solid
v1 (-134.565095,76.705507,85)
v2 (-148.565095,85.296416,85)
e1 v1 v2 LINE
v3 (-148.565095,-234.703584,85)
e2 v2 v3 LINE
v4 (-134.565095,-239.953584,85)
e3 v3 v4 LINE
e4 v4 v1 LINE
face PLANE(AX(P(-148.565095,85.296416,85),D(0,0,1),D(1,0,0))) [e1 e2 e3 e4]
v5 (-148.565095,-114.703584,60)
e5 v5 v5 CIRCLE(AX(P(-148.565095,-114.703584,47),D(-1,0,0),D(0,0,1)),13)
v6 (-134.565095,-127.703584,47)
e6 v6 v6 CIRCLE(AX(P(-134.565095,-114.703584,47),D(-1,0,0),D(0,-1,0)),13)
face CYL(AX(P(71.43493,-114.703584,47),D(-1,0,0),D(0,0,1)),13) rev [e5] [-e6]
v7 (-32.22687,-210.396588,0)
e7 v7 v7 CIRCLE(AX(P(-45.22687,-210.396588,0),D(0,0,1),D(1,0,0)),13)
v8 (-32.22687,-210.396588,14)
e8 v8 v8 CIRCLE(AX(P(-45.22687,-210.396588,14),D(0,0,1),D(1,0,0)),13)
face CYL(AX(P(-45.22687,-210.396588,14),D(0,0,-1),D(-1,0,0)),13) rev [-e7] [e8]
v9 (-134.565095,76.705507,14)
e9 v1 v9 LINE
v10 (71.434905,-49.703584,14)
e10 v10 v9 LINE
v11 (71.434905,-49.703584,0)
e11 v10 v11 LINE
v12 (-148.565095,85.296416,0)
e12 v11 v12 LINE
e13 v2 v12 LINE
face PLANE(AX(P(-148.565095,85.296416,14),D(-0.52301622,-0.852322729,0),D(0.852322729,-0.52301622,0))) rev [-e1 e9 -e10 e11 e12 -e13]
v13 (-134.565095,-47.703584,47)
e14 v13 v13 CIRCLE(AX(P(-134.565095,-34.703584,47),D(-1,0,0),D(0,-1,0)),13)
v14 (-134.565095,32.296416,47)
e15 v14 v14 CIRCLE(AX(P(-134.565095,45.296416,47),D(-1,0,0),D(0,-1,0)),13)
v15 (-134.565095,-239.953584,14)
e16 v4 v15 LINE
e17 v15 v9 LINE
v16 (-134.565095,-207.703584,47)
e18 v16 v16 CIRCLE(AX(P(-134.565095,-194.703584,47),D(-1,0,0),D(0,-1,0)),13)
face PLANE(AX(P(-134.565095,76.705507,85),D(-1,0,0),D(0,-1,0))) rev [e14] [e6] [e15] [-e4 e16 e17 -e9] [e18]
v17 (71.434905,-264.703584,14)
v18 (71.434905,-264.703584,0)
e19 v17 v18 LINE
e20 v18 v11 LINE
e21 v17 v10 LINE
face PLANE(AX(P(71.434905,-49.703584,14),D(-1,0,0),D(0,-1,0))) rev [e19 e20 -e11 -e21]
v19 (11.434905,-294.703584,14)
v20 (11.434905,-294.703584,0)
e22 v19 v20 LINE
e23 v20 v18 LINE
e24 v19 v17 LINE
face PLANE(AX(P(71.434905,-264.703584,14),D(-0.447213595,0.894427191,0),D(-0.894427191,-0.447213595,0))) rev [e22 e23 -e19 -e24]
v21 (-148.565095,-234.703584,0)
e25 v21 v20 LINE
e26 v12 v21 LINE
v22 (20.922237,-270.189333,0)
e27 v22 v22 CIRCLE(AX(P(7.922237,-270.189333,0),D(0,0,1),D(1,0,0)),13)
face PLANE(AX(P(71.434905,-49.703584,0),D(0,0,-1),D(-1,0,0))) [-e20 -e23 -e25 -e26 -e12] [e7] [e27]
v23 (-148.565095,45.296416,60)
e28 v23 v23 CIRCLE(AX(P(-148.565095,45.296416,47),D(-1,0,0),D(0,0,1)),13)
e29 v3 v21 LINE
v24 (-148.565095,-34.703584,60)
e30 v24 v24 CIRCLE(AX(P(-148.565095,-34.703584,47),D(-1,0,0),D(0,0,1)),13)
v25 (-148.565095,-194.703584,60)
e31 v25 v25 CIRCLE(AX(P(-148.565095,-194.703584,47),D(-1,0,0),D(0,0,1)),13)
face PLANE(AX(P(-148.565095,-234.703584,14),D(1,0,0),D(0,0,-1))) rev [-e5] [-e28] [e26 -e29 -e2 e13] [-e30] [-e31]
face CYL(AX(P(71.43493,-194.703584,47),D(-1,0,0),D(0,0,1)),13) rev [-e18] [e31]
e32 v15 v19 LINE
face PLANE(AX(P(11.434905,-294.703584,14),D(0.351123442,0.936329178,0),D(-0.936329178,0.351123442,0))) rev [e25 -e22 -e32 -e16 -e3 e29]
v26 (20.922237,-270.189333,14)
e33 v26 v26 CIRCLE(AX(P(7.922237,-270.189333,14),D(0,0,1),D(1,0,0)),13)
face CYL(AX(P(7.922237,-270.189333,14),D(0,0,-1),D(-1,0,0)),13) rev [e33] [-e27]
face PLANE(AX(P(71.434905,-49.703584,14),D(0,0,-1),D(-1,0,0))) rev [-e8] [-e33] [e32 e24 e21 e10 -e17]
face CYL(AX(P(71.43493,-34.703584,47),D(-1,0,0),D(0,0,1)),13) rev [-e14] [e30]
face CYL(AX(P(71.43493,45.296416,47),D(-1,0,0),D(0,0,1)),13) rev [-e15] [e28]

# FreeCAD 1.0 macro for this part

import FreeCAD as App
import Part
import Sketcher

V = App.Vector
Q = App.Units.Quantity


def add_polygon(sketch, points):
    """Adds a closed chain of lines whose ends are joined by coincident constraints."""
    first, n = sketch.GeometryCount, len(points)
    for a, b in zip(points, points[1:] + points[:1]):
        sketch.addGeometry(Part.LineSegment(App.Vector(*a, 0), App.Vector(*b, 0)), False)
    for i in range(n):
        sketch.addConstraint(Sketcher.Constraint("Coincident", first + i, 2, first + (i + 1) % n, 1))

doc = App.newDocument("Part")
body = doc.addObject("PartDesign::Body", "Body")

# Sketch on XY plane
sketch1 = body.newObject("Sketcher::SketchObject", "Sketch")
sketch1.AttachmentSupport = (doc.getObject("XY_Plane"), [""])
sketch1.MapMode = "FlatFace"
add_polygon(sketch1, [(71.434905, -264.703584), (71.434905, -49.703584), (-148.565095, 85.296416), (-148.565095, -234.703584), (11.434905, -294.703584)])  # lines 0-4
sketch1.addGeometry(Part.Circle(V(7.922237, -270.189333, 0), V(0, 0, 1), 13), False)  # 5
sketch1.addGeometry(Part.Circle(V(-45.22687, -210.396588, 0), V(0, 0, 1), 13), False)  # 6
sketch1.addConstraint(Sketcher.Constraint("Vertical", 0))
sketch1.addConstraint(Sketcher.Constraint("Vertical", 2))
sketch1.addConstraint(Sketcher.Constraint("Equal", 5, 6))
sketch1.addConstraint(Sketcher.Constraint("Diameter", 5, Q("26 mm")))
sketch1.addConstraint(Sketcher.Constraint("DistanceY", 0, 1, 0, 2, Q("215 mm")))
sketch1.addConstraint(Sketcher.Constraint("DistanceY", 2, 2, 2, 1, Q("320 mm")))
sketch1.addConstraint(Sketcher.Constraint("DistanceX", 1, 2, 0, 2, Q("220 mm")))
sketch1.addConstraint(Sketcher.Constraint("DistanceY", 0, 2, 1, 2, Q("135 mm")))
sketch1.addConstraint(Sketcher.Constraint("DistanceX", 2, 2, 3, 2, Q("160 mm")))
sketch1.addConstraint(Sketcher.Constraint("DistanceY", 3, 2, 2, 2, Q("60 mm")))
sketch1.addConstraint(Sketcher.Constraint("DistanceX", 6, 3, -1, 1, Q("45.22687 mm")))
sketch1.addConstraint(Sketcher.Constraint("DistanceY", 5, 3, 0, 2, Q("220.485749 mm")))
sketch1.addConstraint(Sketcher.Constraint("DistanceX", -1, 1, 5, 3, Q("7.922237 mm")))
sketch1.addConstraint(Sketcher.Constraint("DistanceY", 5, 3, -1, 1, Q("270.189333 mm")))
sketch1.addConstraint(Sketcher.Constraint("DistanceY", 6, 3, -1, 1, Q("210.396588 mm")))
sketch1.addConstraint(Sketcher.Constraint("DistanceX", -1, 1, 0, 2, Q("71.434905 mm")))
pad1 = body.newObject("PartDesign::Pad", "Pad")
pad1.Profile = sketch1
pad1.Length = 14

# Sketch on XY plane
sketch2 = body.newObject("Sketcher::SketchObject", "Sketch001")
sketch2.AttachmentSupport = (doc.getObject("XY_Plane"), [""])
sketch2.MapMode = "FlatFace"
sketch2.AttachmentOffset = App.Placement(V(0, 0, 14), App.Rotation())
add_polygon(sketch2, [(-134.565095, -239.953584), (-134.565095, 76.705507), (-148.565095, 85.296416), (-148.565095, -234.703584)])  # lines 0-3
sketch2.addConstraint(Sketcher.Constraint("Vertical", 0))
sketch2.addConstraint(Sketcher.Constraint("Vertical", 2))
sketch2.addConstraint(Sketcher.Constraint("DistanceY", 2, 2, 2, 1, Q("320 mm")))
sketch2.addConstraint(Sketcher.Constraint("DistanceX", 1, 2, 0, 2, Q("14 mm")))
sketch2.addConstraint(Sketcher.Constraint("DistanceY", 3, 2, 2, 2, Q("5.25 mm")))
sketch2.addConstraint(Sketcher.Constraint("DistanceY", 0, 1, 0, 2, Q("316.659091 mm")))
sketch2.addConstraint(Sketcher.Constraint("DistanceX", 0, 2, -1, 1, Q("134.565095 mm")))
sketch2.addConstraint(Sketcher.Constraint("DistanceY", -1, 1, 0, 2, Q("76.705507 mm")))
pad2 = body.newObject("PartDesign::Pad", "Pad001")
pad2.Profile = sketch2
pad2.Length = 71

# Sketch on YZ plane
sketch3 = body.newObject("Sketcher::SketchObject", "Sketch002")
sketch3.AttachmentSupport = (doc.getObject("YZ_Plane"), [""])
sketch3.MapMode = "FlatFace"
sketch3.AttachmentOffset = App.Placement(V(0, 0, -148.565095), App.Rotation())
sketch3.addGeometry(Part.Circle(V(45.296416, 47, 0), V(0, 0, 1), 13), False)
sketch3.addConstraint(Sketcher.Constraint("Diameter", 0, Q("26 mm")))
sketch3.addConstraint(Sketcher.Constraint("DistanceY", -1, 1, 0, 3, Q("47 mm")))
sketch3.addConstraint(Sketcher.Constraint("DistanceX", -1, 1, 0, 3, Q("45.296416 mm")))
pocket1 = body.newObject("PartDesign::Pocket", "Pocket")
pocket1.Profile = sketch3
pocket1.Type = "ThroughAll"
pocket1.Reversed = True
doc.recompute()

linearpattern = body.newObject("PartDesign::LinearPattern", "LinearPattern")
linearpattern.Originals = [pocket1]
linearpattern.Direction = (doc.getObject("Y_Axis"), [""])
linearpattern.Mode = "offset"
linearpattern.Offset = 80
linearpattern.Occurrences = 4
linearpattern.Reversed = True
body.Tip = linearpattern

doc.recompute()
